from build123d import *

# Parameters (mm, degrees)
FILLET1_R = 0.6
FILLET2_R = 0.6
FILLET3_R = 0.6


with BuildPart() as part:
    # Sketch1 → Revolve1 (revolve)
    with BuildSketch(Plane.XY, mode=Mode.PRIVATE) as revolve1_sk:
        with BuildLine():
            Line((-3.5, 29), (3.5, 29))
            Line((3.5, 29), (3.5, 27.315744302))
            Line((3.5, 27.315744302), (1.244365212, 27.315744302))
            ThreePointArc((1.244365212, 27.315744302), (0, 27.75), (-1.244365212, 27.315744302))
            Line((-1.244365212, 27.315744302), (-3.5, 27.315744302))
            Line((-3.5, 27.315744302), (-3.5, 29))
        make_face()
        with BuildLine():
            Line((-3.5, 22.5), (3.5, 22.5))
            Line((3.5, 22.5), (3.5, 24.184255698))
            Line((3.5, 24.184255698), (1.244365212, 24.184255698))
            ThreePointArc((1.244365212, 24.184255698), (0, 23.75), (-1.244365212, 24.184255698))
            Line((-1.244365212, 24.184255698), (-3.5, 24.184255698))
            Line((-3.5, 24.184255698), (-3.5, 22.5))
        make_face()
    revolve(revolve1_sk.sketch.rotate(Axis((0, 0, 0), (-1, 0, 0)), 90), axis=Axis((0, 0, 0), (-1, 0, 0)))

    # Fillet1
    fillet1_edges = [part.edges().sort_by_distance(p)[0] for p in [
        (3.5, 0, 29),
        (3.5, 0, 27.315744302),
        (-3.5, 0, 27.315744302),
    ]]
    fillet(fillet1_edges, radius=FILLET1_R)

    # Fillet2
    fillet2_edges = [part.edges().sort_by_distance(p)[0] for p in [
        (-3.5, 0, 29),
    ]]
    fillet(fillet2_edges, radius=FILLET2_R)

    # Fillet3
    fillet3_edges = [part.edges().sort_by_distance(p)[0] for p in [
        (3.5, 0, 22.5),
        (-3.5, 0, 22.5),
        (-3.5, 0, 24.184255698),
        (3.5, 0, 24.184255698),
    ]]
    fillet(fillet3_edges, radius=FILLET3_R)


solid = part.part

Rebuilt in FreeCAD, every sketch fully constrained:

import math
import FreeCAD as App
import Part
import Sketcher
from FreeCAD import Vector
Q = App.Units.Quantity


def edges_at(feature, points):
    """Names of the edges that pass closest to the given points."""
    edges = feature.Shape.Edges
    near = lambda p: min(range(len(edges)), key=lambda i: edges[i].distToShape(Part.Vertex(*p))[0])
    return sorted({f"Edge{near(p) + 1}" for p in points})

doc = App.newDocument("Part")
body = doc.addObject("PartDesign::Body", "Body")
body.AllowCompound = True

# Sketch on XY plane
sketch1 = body.newObject("Sketcher::SketchObject", "Sketch")
sketch1.AttachmentSupport = (doc.getObject("XY_Plane"), [""])
sketch1.MapMode = "FlatFace"
sketch1.addGeometry(Part.LineSegment(Vector(3.5, 29, 0), Vector(-3.5, 29, 0)), False)
sketch1.addGeometry(Part.LineSegment(Vector(-3.5, 29, 0), Vector(-3.5, 27.3, 0)), False)
sketch1.addGeometry(Part.LineSegment(Vector(-3.5, 27.3, 0), Vector(-1.2, 27.3, 0)), False)
sketch1.addGeometry(Part.ArcOfCircle(Part.Circle(Vector(0, 25.8, 0), Vector(0, 0, 1), 2), math.radians(52), math.radians(128)), False)
sketch1.addGeometry(Part.LineSegment(Vector(1.2, 27.3, 0), Vector(3.5, 27.3, 0)), False)
sketch1.addGeometry(Part.LineSegment(Vector(3.5, 27.3, 0), Vector(3.5, 29, 0)), False)
sketch1.addGeometry(Part.LineSegment(Vector(-3.5, 22.5, 0), Vector(3.5, 22.5, 0)), False)
sketch1.addGeometry(Part.LineSegment(Vector(3.5, 22.5, 0), Vector(3.5, 24.2, 0)), False)
sketch1.addGeometry(Part.LineSegment(Vector(3.5, 24.2, 0), Vector(1.2, 24.2, 0)), False)
sketch1.addGeometry(Part.ArcOfCircle(Part.Circle(Vector(0, 25.8, 0), Vector(0, 0, 1), 2), math.radians(-128), math.radians(-52)), False)
sketch1.addGeometry(Part.LineSegment(Vector(-1.2, 24.2, 0), Vector(-3.5, 24.2, 0)), False)
sketch1.addGeometry(Part.LineSegment(Vector(-3.5, 24.2, 0), Vector(-3.5, 22.5, 0)), False)
sketch1.addConstraint(Sketcher.Constraint("Coincident", 0, 2, 1, 1))
sketch1.addConstraint(Sketcher.Constraint("Coincident", 1, 2, 2, 1))
sketch1.addConstraint(Sketcher.Constraint("Coincident", 2, 2, 3, 2))
sketch1.addConstraint(Sketcher.Constraint("Coincident", 3, 1, 4, 1))
sketch1.addConstraint(Sketcher.Constraint("Coincident", 4, 2, 5, 1))
sketch1.addConstraint(Sketcher.Constraint("Coincident", 5, 2, 0, 1))
sketch1.addConstraint(Sketcher.Constraint("Coincident", 6, 2, 7, 1))
sketch1.addConstraint(Sketcher.Constraint("Coincident", 7, 2, 8, 1))
sketch1.addConstraint(Sketcher.Constraint("Coincident", 8, 2, 9, 2))
sketch1.addConstraint(Sketcher.Constraint("Coincident", 9, 1, 10, 1))
sketch1.addConstraint(Sketcher.Constraint("Coincident", 10, 2, 11, 1))
sketch1.addConstraint(Sketcher.Constraint("Coincident", 11, 2, 6, 1))
sketch1.addConstraint(Sketcher.Constraint("Horizontal", 0))
sketch1.addConstraint(Sketcher.Constraint("Vertical", 1))
sketch1.addConstraint(Sketcher.Constraint("Horizontal", 2))
sketch1.addConstraint(Sketcher.Constraint("Horizontal", 4))
sketch1.addConstraint(Sketcher.Constraint("Vertical", 5))
sketch1.addConstraint(Sketcher.Constraint("Horizontal", 6))
sketch1.addConstraint(Sketcher.Constraint("Vertical", 7))
sketch1.addConstraint(Sketcher.Constraint("Horizontal", 8))
sketch1.addConstraint(Sketcher.Constraint("Horizontal", 10))
sketch1.addConstraint(Sketcher.Constraint("Vertical", 11))
sketch1.addConstraint(Sketcher.Constraint("Coincident", 9, 3, 3, 3))
sketch1.addConstraint(Sketcher.Constraint("Equal", 3, 9))
sketch1.addConstraint(Sketcher.Constraint("Symmetric", 2, 2, 3, 1, -2))
sketch1.addConstraint(Sketcher.Constraint("Symmetric", 7, 2, 10, 2, -2))
sketch1.addConstraint(Sketcher.Constraint("Vertical", 5, 2, 6, 2))
sketch1.addConstraint(Sketcher.Constraint("Vertical", 3, 1, 8, 2))
sketch1.addConstraint(Sketcher.Constraint("Vertical", 1, 2, 10, 2))
sketch1.addConstraint(Sketcher.Constraint("Equal", 5, 7))
sketch1.addConstraint(Sketcher.Constraint("Radius", 3, Q("2 mm")))
sketch1.addConstraint(Sketcher.Constraint("DistanceX", 0, 2, 0, 1, Q("7 mm")))
sketch1.addConstraint(Sketcher.Constraint("DistanceY", -1, 1, 0, 2, Q("29 mm")))
sketch1.addConstraint(Sketcher.Constraint("DistanceY", -1, 1, 6, 2, Q("22.5 mm")))
sketch1.addConstraint(Sketcher.Constraint("DistanceX", 2, 1, 2, 2, Q("2.255635 mm")))
revolution = body.newObject("PartDesign::Revolution", "Revolution")
revolution.Profile = sketch1
revolution.ReferenceAxis = (sketch1, ["H_Axis"])
revolution.Angle = 360
doc.recompute()

fillet = body.newObject("PartDesign::Fillet", "Fillet")
fillet.Base = (revolution, edges_at(revolution, [(3.5, 0, 29), (3.5, 0, 27.316), (-3.5, 0, 27.316)]))
fillet.Radius = 0.6
doc.recompute()

fillet2 = body.newObject("PartDesign::Fillet", "Fillet001")
fillet2.Base = (fillet, edges_at(fillet, [(-3.5, 0, 29)]))
fillet2.Radius = 0.6
doc.recompute()

fillet3 = body.newObject("PartDesign::Fillet", "Fillet002")
fillet3.Base = (fillet2, edges_at(fillet2, [
    (3.5, 0, 22.5),
    (-3.5, 0, 22.5),
    (-3.5, 0, 24.184),
    (3.5, 0, 24.184),
]))
fillet3.Radius = 0.6

doc.recompute()
